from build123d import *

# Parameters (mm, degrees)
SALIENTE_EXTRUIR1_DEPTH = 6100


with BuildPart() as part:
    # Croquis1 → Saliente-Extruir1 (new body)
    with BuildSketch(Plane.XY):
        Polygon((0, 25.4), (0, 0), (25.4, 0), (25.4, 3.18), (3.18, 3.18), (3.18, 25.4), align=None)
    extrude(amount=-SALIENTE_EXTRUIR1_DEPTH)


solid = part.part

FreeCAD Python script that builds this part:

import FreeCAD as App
import Part
import Sketcher

V = App.Vector


def add_polygon(sketch, points):
    """Adds a closed chain of lines whose ends are joined by coincident constraints."""
    first, n = sketch.GeometryCount, len(points)
    for a, b in zip(points, points[1:] + points[:1]):
        sketch.addGeometry(Part.LineSegment(App.Vector(*a, 0), App.Vector(*b, 0)), False)
    for i in range(n):
        sketch.addConstraint(Sketcher.Constraint("Coincident", first + i, 2, first + (i + 1) % n, 1))

doc = App.newDocument("Part")
params = doc.addObject("Spreadsheet::Sheet", "Params")
for row, (alias, value) in enumerate([
    ("sketch1_width", "25.4 mm"),
    ("sketch1_width2", "22.22 mm"),
    ("pad1_length", "6100 mm"),
], start=1):
    params.set(f"A{row}", alias)
    params.set(f"B{row}", "=" + value)
    params.setAlias(f"B{row}", alias)

body = doc.addObject("PartDesign::Body", "Body")

sketch1 = body.newObject("Sketcher::SketchObject", "Sketch")
sketch1.AttachmentSupport = (doc.getObject("XY_Plane"), [""])
sketch1.MapMode = "FlatFace"
add_polygon(sketch1, [(0, 25.4), (0, 0), (25.4, 0), (25.4, 3.18), (3.18, 3.18), (3.18, 25.4)])
sketch1.addConstraint([
    Sketcher.Constraint("Vertical", 0),
    Sketcher.Constraint("Horizontal", 1),
    Sketcher.Constraint("Vertical", 2),
    Sketcher.Constraint("Horizontal", 3),
    Sketcher.Constraint("Vertical", 4),
    Sketcher.Constraint("Horizontal", 5),
    Sketcher.Constraint("Coincident", 0, 2, -1, 1),
    Sketcher.Constraint("Equal", 1, 0),
    Sketcher.Constraint("Equal", 5, 2),
    Sketcher.Constraint("DistanceX", 1, 1, 1, 2, 25.4),
    Sketcher.Constraint("DistanceX", 3, 2, 3, 1, 22.22),
])
sketch1.setExpression("Constraints[15]", "Params.sketch1_width")
sketch1.setExpression("Constraints[16]", "Params.sketch1_width2")
pad1 = body.newObject("PartDesign::Pad", "Pad")
pad1.Profile = sketch1
pad1.setExpression("Length", "Params.pad1_length")
pad1.Reversed = True

doc.recompute()
